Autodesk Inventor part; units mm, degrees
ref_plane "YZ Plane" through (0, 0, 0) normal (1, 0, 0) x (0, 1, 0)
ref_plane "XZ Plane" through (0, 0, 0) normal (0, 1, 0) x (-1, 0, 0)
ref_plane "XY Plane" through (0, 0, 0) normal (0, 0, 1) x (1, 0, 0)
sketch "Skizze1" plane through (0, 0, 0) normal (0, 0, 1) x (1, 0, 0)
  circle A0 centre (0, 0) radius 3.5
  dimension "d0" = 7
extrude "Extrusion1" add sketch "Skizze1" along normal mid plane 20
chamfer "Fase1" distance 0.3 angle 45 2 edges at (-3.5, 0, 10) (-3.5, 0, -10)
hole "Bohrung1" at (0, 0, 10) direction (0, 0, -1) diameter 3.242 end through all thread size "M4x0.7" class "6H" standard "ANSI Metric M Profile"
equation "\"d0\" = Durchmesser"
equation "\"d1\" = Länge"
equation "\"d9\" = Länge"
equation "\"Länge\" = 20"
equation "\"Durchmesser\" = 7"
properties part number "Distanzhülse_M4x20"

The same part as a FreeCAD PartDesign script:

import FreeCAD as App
import Part
import Sketcher


def edges_at(feature, points):
    """Names of the edges that pass closest to the given points."""
    edges = feature.Shape.Edges
    near = lambda p: min(range(len(edges)), key=lambda i: edges[i].distToShape(Part.Vertex(*p))[0])
    return sorted({f"Edge{near(p) + 1}" for p in points})

doc = App.newDocument("Part")
body = doc.addObject("PartDesign::Body", "Body")

sketch1 = body.newObject("Sketcher::SketchObject", "Sketch")
sketch1.AttachmentSupport = (doc.getObject("XY_Plane"), [""])
sketch1.MapMode = "FlatFace"
sketch1.addGeometry(Part.Circle(App.Vector(0, 0, 0), App.Vector(0, 0, 1), 3.5), False)
sketch1.addConstraint(Sketcher.Constraint("Coincident", 0, 3, -1, 1))
sketch1.addConstraint(Sketcher.Constraint("Diameter", 0, 7.0))
pad1 = body.newObject("PartDesign::Pad", "Pad")
pad1.Profile = sketch1
pad1.Length = 20
pad1.Midplane = True
doc.recompute()

chamfer = body.newObject("PartDesign::Chamfer", "Chamfer")
chamfer.Base = (pad1, edges_at(pad1, [(-3.5, 0, 10), (-3.5, 0, -10)]))
chamfer.Size = 0.3

sketch2 = body.newObject("Sketcher::SketchObject", "Sketch001")
sketch2.AttachmentSupport = (doc.getObject("XY_Plane"), [""])
sketch2.MapMode = "FlatFace"
sketch2.AttachmentOffset = App.Placement(App.Vector(0, 0, 10), App.Rotation())
sketch2.addGeometry(Part.Circle(App.Vector(0, 0, 0), App.Vector(0, 0, 1), 1.6), False)
sketch2.addConstraint(Sketcher.Constraint("Coincident", 0, 3, -1, 1))
sketch2.addConstraint(Sketcher.Constraint("Diameter", 0, 3.242))
doc.recompute()
hole = body.newObject("PartDesign::Hole", "Hole")
hole.Profile = sketch2
hole.ThreadType = "None"
hole.Diameter = 3.242
hole.DepthType = "ThroughAll"

doc.recompute()
